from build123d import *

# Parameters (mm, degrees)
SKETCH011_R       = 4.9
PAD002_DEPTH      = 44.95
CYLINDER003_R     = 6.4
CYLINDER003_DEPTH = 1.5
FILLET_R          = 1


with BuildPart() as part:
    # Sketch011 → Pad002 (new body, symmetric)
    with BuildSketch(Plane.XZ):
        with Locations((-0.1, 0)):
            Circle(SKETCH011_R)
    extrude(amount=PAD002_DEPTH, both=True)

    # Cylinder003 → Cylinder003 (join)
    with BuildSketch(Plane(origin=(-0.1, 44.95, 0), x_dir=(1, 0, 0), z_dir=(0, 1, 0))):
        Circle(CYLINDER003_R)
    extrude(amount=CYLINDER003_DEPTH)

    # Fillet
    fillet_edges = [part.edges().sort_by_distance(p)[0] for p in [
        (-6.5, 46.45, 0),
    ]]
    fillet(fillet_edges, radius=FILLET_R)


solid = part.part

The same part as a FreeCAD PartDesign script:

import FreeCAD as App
import Part
import Sketcher
Q = App.Units.Quantity


def edges_at(feature, points):
    """Names of the edges that pass closest to the given points."""
    edges = feature.Shape.Edges
    near = lambda p: min(range(len(edges)), key=lambda i: edges[i].distToShape(Part.Vertex(*p))[0])
    return sorted({f"Edge{near(p) + 1}" for p in points})

doc = App.newDocument("Part")
body = doc.addObject("PartDesign::Body", "Body")

# Sketch on XZ plane
sketch1 = doc.addObject("Sketcher::SketchObject", "Sketch")
body.addObject(sketch1)
sketch1.AttachmentSupport = (doc.XZ_Plane, [""])
sketch1.MapMode = "FlatFace"
sketch1.addGeometry(Part.Circle(App.Vector(-0.1, 0, 0), App.Vector(0, 0, 1), 4.9), False)
sketch1.addConstraint(Sketcher.Constraint("PointOnObject", 0, 3, -1))
sketch1.addConstraint(Sketcher.Constraint("Diameter", 0, Q("9.8 mm")))
sketch1.addConstraint(Sketcher.Constraint("DistanceX", 0, 3, -1, 1, Q("0.1 mm")))
pad1 = doc.addObject("PartDesign::Pad", "Pad")
body.addObject(pad1)
pad1.Profile = sketch1
pad1.Length = 89.9
pad1.Midplane = True

# Sketch on XZ plane
sketch2 = doc.addObject("Sketcher::SketchObject", "Sketch001")
body.addObject(sketch2)
sketch2.AttachmentSupport = (doc.XZ_Plane, [""])
sketch2.MapMode = "FlatFace"
sketch2.AttachmentOffset = App.Placement(App.Vector(0, 0, -44.95), App.Rotation())
sketch2.addGeometry(Part.Circle(App.Vector(0, 0, 0), App.Vector(0, 0, 1), 6), False)
sketch2.addConstraint(Sketcher.Constraint("PointOnObject", 0, 3, -1))
sketch2.addConstraint(Sketcher.Constraint("Diameter", 0, Q("12.8 mm")))
sketch2.addConstraint(Sketcher.Constraint("DistanceX", 0, 3, -1, 1, Q("0.1 mm")))
pad2 = doc.addObject("PartDesign::Pad", "Pad001")
body.addObject(pad2)
pad2.Profile = sketch2
pad2.Length = 1.5
pad2.Reversed = True
doc.recompute()

fillet = doc.addObject("PartDesign::Fillet", "Fillet")
body.addObject(fillet)
fillet.Base = (pad2, edges_at(pad2, [(-6.5, 46.45, 0)]))
fillet.Radius = 1

doc.recompute()
